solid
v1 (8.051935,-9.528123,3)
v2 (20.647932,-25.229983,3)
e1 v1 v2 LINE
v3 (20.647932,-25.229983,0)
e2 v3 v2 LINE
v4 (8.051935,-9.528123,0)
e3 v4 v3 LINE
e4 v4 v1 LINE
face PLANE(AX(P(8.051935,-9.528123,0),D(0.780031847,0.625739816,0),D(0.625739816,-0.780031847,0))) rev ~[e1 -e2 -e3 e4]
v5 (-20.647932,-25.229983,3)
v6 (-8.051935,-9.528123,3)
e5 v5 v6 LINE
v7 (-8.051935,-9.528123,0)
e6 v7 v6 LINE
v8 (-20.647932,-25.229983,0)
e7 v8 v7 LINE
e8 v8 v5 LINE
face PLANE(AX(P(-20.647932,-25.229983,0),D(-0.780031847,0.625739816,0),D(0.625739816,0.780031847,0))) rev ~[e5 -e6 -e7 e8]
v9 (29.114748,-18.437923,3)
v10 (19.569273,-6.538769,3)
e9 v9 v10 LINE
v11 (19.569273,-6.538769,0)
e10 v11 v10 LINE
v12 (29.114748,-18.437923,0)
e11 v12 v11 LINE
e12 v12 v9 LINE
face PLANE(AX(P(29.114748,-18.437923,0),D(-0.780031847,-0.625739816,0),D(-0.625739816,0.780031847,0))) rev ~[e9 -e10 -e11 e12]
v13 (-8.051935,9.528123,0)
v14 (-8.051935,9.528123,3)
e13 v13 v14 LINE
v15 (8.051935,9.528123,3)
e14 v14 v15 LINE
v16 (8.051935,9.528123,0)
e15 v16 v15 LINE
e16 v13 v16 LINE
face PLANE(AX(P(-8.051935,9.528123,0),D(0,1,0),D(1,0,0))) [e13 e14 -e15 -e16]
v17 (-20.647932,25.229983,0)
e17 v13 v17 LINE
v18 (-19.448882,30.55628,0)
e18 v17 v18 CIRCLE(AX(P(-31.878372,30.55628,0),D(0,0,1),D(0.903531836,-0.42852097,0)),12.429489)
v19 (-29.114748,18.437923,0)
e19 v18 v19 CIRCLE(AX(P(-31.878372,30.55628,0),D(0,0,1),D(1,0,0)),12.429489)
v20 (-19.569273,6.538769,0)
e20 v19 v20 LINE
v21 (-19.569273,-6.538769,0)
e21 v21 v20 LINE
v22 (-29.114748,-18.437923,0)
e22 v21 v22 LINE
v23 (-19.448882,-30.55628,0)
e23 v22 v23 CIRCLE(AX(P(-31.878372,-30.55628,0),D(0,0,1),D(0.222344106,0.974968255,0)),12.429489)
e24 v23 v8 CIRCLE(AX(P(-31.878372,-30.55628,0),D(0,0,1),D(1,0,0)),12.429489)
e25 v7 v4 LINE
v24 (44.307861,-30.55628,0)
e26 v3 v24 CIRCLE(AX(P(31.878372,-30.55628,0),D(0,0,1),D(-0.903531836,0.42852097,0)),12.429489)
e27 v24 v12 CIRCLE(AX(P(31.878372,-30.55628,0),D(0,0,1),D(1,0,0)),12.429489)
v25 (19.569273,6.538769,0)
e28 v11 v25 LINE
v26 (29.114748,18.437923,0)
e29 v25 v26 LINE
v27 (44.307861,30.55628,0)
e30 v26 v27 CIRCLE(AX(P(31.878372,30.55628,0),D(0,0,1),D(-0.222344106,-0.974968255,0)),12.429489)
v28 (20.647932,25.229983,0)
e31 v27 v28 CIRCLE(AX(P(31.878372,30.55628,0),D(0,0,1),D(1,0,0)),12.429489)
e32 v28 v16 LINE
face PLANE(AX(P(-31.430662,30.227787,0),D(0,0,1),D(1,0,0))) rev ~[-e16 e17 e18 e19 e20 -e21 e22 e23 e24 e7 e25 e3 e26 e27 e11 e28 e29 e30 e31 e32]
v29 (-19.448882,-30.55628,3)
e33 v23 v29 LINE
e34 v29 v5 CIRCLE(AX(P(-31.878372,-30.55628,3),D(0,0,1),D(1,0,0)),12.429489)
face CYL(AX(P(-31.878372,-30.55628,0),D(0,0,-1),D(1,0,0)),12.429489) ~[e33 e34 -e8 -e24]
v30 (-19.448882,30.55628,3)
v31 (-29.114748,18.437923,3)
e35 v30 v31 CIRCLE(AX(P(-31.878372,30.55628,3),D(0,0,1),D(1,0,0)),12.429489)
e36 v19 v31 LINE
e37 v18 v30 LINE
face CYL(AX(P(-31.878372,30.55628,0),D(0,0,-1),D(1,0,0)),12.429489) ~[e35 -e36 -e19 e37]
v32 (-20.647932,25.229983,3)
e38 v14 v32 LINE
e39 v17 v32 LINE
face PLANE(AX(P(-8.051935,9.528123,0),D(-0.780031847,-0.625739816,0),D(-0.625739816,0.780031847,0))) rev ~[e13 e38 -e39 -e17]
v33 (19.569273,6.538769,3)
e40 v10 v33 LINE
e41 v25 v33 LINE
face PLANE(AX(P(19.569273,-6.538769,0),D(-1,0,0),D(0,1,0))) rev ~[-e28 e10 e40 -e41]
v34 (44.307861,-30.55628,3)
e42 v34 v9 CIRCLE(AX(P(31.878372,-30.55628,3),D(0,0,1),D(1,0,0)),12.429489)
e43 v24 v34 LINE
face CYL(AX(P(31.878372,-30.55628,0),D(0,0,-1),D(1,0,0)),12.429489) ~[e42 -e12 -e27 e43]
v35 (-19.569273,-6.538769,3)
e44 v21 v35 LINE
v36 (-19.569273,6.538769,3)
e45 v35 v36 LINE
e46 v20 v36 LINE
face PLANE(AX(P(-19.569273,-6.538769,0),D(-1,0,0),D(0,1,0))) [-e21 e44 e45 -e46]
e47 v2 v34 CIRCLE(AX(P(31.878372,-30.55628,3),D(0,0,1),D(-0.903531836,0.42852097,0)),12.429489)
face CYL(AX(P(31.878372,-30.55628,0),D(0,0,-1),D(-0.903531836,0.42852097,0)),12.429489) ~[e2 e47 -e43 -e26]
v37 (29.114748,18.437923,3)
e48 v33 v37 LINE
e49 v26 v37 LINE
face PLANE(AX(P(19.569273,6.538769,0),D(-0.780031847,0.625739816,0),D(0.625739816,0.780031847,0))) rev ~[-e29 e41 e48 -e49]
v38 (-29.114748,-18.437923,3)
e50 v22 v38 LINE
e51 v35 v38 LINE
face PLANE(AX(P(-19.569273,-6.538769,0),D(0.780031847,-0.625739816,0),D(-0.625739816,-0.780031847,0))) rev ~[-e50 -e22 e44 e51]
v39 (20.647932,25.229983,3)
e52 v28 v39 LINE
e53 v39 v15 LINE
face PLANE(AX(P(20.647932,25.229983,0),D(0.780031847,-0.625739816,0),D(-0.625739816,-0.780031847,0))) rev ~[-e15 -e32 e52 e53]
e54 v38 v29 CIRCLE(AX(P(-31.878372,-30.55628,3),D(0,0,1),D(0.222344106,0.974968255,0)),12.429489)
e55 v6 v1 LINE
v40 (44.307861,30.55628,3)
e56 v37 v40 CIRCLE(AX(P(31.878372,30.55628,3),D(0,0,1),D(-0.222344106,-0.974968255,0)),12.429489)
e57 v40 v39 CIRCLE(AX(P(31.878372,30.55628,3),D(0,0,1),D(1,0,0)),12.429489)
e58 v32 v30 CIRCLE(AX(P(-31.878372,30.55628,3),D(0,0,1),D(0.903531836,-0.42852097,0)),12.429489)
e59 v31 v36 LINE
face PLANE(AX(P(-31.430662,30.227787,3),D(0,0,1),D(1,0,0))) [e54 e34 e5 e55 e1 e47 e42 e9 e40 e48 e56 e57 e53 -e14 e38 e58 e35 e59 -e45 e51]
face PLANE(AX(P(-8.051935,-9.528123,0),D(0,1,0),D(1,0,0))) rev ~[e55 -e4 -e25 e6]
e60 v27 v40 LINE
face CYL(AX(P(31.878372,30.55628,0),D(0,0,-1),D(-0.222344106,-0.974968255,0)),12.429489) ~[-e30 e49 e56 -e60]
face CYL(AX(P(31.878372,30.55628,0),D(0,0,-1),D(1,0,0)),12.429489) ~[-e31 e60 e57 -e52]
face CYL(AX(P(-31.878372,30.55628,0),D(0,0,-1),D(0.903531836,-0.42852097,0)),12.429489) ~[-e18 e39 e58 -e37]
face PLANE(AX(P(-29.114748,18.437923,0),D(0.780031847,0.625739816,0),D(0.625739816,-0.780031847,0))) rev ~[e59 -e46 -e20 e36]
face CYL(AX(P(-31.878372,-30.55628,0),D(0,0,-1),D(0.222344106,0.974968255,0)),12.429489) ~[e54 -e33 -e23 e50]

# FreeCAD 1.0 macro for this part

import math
import FreeCAD as App
import Part
import Sketcher
from FreeCAD import Vector
Q = App.Units.Quantity

doc = App.newDocument("Part")
body = doc.addObject("PartDesign::Body", "Body")

sketch1 = body.newObject("Sketcher::SketchObject", "Sketch")
sketch1.AttachmentSupport = (doc.getObject("XY_Plane"), [""])
sketch1.MapMode = "FlatFace"
sketch1.addGeometry(Part.ArcOfCircle(Part.Circle(Vector(-32, 31, 0), Vector(0, 0, 1), 12), math.radians(-25), math.radians(0)), False)
sketch1.addGeometry(Part.ArcOfCircle(Part.Circle(Vector(-32, 31, 0), Vector(0, 0, 1), 12), math.radians(0), math.radians(283)), False)
sketch1.addGeometry(Part.LineSegment(Vector(-29, 18, 0), Vector(-20, 7, 0)), False)
sketch1.addGeometry(Part.LineSegment(Vector(-20, 7, 0), Vector(-20, -7, 0)), False)
sketch1.addGeometry(Part.LineSegment(Vector(-20, -7, 0), Vector(-29, -18, 0)), False)
sketch1.addGeometry(Part.ArcOfCircle(Part.Circle(Vector(-32, -31, 0), Vector(0, 0, 1), 12), math.radians(77), math.radians(360)), False)
sketch1.addGeometry(Part.ArcOfCircle(Part.Circle(Vector(-32, -31, 0), Vector(0, 0, 1), 12), math.radians(0), math.radians(25)), False)
sketch1.addGeometry(Part.LineSegment(Vector(-21, -25, 0), Vector(-8, -10, 0)), False)
sketch1.addGeometry(Part.LineSegment(Vector(-8, -10, 0), Vector(8, -10, 0)), False)
sketch1.addGeometry(Part.LineSegment(Vector(8, -10, 0), Vector(21, -25, 0)), False)
sketch1.addGeometry(Part.ArcOfCircle(Part.Circle(Vector(32, -31, 0), Vector(0, 0, 1), 12), math.radians(155), math.radians(360)), False)
sketch1.addGeometry(Part.ArcOfCircle(Part.Circle(Vector(32, -31, 0), Vector(0, 0, 1), 12), math.radians(0), math.radians(103)), False)
sketch1.addGeometry(Part.LineSegment(Vector(29, -18, 0), Vector(20, -7, 0)), False)
sketch1.addGeometry(Part.LineSegment(Vector(20, -7, 0), Vector(20, 7, 0)), False)
sketch1.addGeometry(Part.LineSegment(Vector(20, 7, 0), Vector(29, 18, 0)), False)
sketch1.addGeometry(Part.ArcOfCircle(Part.Circle(Vector(32, 31, 0), Vector(0, 0, 1), 12), math.radians(-103), math.radians(0)), False)
sketch1.addGeometry(Part.ArcOfCircle(Part.Circle(Vector(32, 31, 0), Vector(0, 0, 1), 12), math.radians(0), math.radians(205)), False)
sketch1.addGeometry(Part.LineSegment(Vector(21, 25, 0), Vector(8, 10, 0)), False)
sketch1.addGeometry(Part.LineSegment(Vector(8, 10, 0), Vector(-8, 10, 0)), False)
sketch1.addGeometry(Part.LineSegment(Vector(-8, 10, 0), Vector(-21, 25, 0)), False)
sketch1.addConstraint(Sketcher.Constraint("Tangent", 0, 2, 1, 1))
sketch1.addConstraint(Sketcher.Constraint("Coincident", 1, 2, 2, 1))
sketch1.addConstraint(Sketcher.Constraint("Coincident", 2, 2, 3, 1))
sketch1.addConstraint(Sketcher.Constraint("Coincident", 3, 2, 4, 1))
sketch1.addConstraint(Sketcher.Constraint("Coincident", 4, 2, 5, 1))
sketch1.addConstraint(Sketcher.Constraint("Tangent", 5, 2, 6, 1))
sketch1.addConstraint(Sketcher.Constraint("Coincident", 6, 2, 7, 1))
sketch1.addConstraint(Sketcher.Constraint("Coincident", 7, 2, 8, 1))
sketch1.addConstraint(Sketcher.Constraint("Coincident", 8, 2, 9, 1))
sketch1.addConstraint(Sketcher.Constraint("Coincident", 9, 2, 10, 1))
sketch1.addConstraint(Sketcher.Constraint("Tangent", 10, 2, 11, 1))
sketch1.addConstraint(Sketcher.Constraint("Coincident", 11, 2, 12, 1))
sketch1.addConstraint(Sketcher.Constraint("Coincident", 12, 2, 13, 1))
sketch1.addConstraint(Sketcher.Constraint("Coincident", 13, 2, 14, 1))
sketch1.addConstraint(Sketcher.Constraint("Coincident", 14, 2, 15, 1))
sketch1.addConstraint(Sketcher.Constraint("Tangent", 15, 2, 16, 1))
sketch1.addConstraint(Sketcher.Constraint("Coincident", 16, 2, 17, 1))
sketch1.addConstraint(Sketcher.Constraint("Coincident", 17, 2, 18, 1))
sketch1.addConstraint(Sketcher.Constraint("Coincident", 18, 2, 19, 1))
sketch1.addConstraint(Sketcher.Constraint("Coincident", 19, 2, 0, 1))
sketch1.addConstraint(Sketcher.Constraint("Vertical", 3))
sketch1.addConstraint(Sketcher.Constraint("Horizontal", 8))
sketch1.addConstraint(Sketcher.Constraint("Vertical", 13))
sketch1.addConstraint(Sketcher.Constraint("Horizontal", 18))
sketch1.addConstraint(Sketcher.Constraint("Equal", 0, 1))
sketch1.addConstraint(Sketcher.Constraint("Equal", 1, 5))
sketch1.addConstraint(Sketcher.Constraint("Equal", 5, 6))
sketch1.addConstraint(Sketcher.Constraint("Equal", 6, 10))
sketch1.addConstraint(Sketcher.Constraint("Equal", 10, 11))
sketch1.addConstraint(Sketcher.Constraint("Equal", 11, 15))
sketch1.addConstraint(Sketcher.Constraint("Equal", 15, 16))
sketch1.addConstraint(Sketcher.Constraint("Symmetric", 0, 3, 10, 3, -1, 1))
sketch1.addConstraint(Sketcher.Constraint("Symmetric", 5, 3, 15, 3, -1, 1))
sketch1.addConstraint(Sketcher.Constraint("Symmetric", 2, 2, 12, 2, -1, 1))
sketch1.addConstraint(Sketcher.Constraint("Symmetric", 7, 2, 17, 2, -1, 1))
sketch1.addConstraint(Sketcher.Constraint("Symmetric", 5, 3, 10, 3, -2))
sketch1.addConstraint(Sketcher.Constraint("Parallel", 4, 7))
sketch1.addConstraint(Sketcher.Constraint("Parallel", 2, 9))
sketch1.addConstraint(Sketcher.Constraint("Parallel", 9, 12))
sketch1.addConstraint(Sketcher.Constraint("Parallel", 7, 14))
sketch1.addConstraint(Sketcher.Constraint("Parallel", 14, 17))
sketch1.addConstraint(Sketcher.Constraint("Parallel", 12, 19))
sketch1.addConstraint(Sketcher.Constraint("Horizontal", 16, 3, 0, 2))
sketch1.addConstraint(Sketcher.Constraint("Horizontal", 11, 3, 5, 2))
sketch1.addConstraint(Sketcher.Constraint("Horizontal", 6, 2, 9, 2))
sketch1.addConstraint(Sketcher.Constraint("Horizontal", 5, 2, 10, 2))
sketch1.addConstraint(Sketcher.Constraint("Horizontal", 4, 2, 11, 2))
sketch1.addConstraint(Sketcher.Constraint("Horizontal", 3, 2, 12, 2))
sketch1.addConstraint(Sketcher.Constraint("Horizontal", 2, 2, 13, 2))
sketch1.addConstraint(Sketcher.Constraint("Horizontal", 0, 2, 15, 2))
sketch1.addConstraint(Sketcher.Constraint("Horizontal", 16, 2, 19, 2))
sketch1.addConstraint(Sketcher.Constraint("Radius", 0, Q("12.429489 mm")))
sketch1.addConstraint(Sketcher.Constraint("DistanceX", 8, 1, 8, 2, Q("16.103869 mm")))
sketch1.addConstraint(Sketcher.Constraint("DistanceX", 1, 3, 2, 2, Q("12.309099 mm")))
sketch1.addConstraint(Sketcher.Constraint("DistanceY", 4, 2, 7, 2, Q("8.9098 mm")))
sketch1.addConstraint(Sketcher.Constraint("Distance", 7, Q("20.129769 mm")))
sketch1.addConstraint(Sketcher.Constraint("DistanceY", 3, 2, 3, 1, Q("13.077537 mm")))
sketch1.addConstraint(Sketcher.Constraint("DistanceX", 0, 3, -1, 1, Q("31.878372 mm")))
sketch1.addConstraint(Sketcher.Constraint("DistanceY", -1, 1, 0, 3, Q("30.55628 mm")))
pad1 = body.newObject("PartDesign::Pad", "Pad")
pad1.Profile = sketch1
pad1.Length = 3

doc.recompute()
